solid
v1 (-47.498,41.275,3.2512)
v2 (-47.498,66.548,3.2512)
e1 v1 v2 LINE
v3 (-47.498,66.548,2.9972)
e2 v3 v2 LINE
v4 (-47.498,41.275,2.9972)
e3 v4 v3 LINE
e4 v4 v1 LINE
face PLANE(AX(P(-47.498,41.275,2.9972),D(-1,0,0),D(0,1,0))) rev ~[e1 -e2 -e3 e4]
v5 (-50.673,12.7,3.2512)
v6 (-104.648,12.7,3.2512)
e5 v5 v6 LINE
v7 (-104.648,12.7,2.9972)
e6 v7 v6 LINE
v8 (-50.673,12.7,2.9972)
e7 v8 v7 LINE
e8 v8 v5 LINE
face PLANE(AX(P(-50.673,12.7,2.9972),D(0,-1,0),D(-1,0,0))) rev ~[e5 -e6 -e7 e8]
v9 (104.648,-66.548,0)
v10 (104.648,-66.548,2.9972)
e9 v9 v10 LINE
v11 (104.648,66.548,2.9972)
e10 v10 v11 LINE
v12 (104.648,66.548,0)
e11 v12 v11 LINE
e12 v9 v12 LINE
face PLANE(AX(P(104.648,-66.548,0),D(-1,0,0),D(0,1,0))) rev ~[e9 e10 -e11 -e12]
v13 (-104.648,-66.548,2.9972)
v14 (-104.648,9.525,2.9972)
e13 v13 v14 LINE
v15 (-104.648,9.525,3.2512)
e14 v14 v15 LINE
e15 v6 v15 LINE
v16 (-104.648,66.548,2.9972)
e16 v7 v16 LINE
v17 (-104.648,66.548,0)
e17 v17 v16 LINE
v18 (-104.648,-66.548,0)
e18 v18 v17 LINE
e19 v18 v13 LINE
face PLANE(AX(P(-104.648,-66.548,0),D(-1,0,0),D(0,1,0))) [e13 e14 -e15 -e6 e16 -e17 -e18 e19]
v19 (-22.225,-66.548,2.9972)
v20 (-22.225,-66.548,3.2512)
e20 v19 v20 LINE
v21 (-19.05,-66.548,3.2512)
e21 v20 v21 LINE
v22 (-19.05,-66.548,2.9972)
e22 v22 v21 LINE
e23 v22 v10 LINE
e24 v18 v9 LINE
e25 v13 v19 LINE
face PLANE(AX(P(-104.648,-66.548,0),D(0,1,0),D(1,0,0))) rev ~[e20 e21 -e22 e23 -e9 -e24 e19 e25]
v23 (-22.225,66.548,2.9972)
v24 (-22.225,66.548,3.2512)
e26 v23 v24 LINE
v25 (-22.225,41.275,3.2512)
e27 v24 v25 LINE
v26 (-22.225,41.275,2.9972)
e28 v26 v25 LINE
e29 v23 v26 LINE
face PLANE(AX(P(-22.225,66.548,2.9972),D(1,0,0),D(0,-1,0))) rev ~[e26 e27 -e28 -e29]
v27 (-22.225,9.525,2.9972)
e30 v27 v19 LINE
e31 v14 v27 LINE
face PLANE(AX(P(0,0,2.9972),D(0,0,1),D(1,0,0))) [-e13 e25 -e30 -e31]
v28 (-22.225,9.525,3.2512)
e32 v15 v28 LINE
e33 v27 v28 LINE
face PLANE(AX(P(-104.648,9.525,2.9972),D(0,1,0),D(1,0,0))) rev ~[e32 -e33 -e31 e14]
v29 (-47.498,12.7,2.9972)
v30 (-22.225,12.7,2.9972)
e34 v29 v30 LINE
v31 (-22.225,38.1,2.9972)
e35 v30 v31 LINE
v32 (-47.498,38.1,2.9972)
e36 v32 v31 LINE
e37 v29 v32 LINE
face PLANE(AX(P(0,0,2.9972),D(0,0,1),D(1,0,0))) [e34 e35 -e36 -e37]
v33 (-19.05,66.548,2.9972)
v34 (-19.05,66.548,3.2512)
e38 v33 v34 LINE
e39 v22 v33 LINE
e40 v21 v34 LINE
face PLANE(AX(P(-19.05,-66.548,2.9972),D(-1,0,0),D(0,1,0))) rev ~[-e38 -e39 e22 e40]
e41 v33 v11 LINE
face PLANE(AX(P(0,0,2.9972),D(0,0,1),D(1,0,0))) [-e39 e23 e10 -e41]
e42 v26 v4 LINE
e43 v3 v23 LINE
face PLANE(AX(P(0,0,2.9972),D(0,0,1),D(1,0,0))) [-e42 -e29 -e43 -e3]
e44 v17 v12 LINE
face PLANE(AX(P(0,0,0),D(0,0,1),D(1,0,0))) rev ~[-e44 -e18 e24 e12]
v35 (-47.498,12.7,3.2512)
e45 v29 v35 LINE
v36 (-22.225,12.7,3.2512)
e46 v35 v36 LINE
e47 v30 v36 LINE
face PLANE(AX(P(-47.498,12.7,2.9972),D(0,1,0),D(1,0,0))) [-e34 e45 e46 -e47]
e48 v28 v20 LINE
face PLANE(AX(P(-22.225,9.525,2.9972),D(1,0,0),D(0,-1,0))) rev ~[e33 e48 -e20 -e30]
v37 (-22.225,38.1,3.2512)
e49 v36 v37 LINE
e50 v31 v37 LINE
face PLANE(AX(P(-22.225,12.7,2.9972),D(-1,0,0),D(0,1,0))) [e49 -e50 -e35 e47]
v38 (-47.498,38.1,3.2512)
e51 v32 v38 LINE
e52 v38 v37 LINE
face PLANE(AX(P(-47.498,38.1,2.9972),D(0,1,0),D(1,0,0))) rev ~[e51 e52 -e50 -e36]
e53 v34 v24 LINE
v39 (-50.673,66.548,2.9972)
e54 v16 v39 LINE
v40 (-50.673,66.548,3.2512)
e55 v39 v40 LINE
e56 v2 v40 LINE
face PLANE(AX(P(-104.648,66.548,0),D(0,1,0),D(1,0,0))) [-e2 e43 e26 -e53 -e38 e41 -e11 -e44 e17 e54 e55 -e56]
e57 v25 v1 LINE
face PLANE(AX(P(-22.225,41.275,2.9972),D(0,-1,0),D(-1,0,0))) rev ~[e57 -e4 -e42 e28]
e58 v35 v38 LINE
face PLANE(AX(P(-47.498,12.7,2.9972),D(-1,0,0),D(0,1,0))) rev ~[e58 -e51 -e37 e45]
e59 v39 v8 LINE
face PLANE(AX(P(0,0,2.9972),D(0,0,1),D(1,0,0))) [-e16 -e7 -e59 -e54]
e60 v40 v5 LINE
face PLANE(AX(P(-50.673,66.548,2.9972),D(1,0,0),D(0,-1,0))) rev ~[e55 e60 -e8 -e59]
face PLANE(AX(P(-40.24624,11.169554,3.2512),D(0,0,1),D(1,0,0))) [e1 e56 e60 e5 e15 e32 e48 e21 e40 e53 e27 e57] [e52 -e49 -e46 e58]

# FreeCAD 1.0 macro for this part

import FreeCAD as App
import Part
import Sketcher

V = App.Vector
Q = App.Units.Quantity

doc = App.newDocument("Part")
body = doc.addObject("PartDesign::Body", "Body")

sketch1 = doc.addObject("Sketcher::SketchObject", "Sketch")
body.addObject(sketch1)
sketch1.AttachmentSupport = (doc.XY_Plane, [""])
sketch1.MapMode = "FlatFace"
sketch1.addGeometry(Part.LineSegment(V(-105, 67, 0), V(-105, -67, 0)), False)
sketch1.addGeometry(Part.LineSegment(V(-105, -67, 0), V(105, -67, 0)), False)
sketch1.addGeometry(Part.LineSegment(V(105, -67, 0), V(105, 67, 0)), False)
sketch1.addGeometry(Part.LineSegment(V(105, 67, 0), V(-105, 67, 0)), False)
sketch1.addConstraint(Sketcher.Constraint("Coincident", 0, 2, 1, 1))
sketch1.addConstraint(Sketcher.Constraint("Coincident", 1, 2, 2, 1))
sketch1.addConstraint(Sketcher.Constraint("Coincident", 2, 2, 3, 1))
sketch1.addConstraint(Sketcher.Constraint("Coincident", 3, 2, 0, 1))
sketch1.addConstraint(Sketcher.Constraint("Vertical", 0))
sketch1.addConstraint(Sketcher.Constraint("Horizontal", 1))
sketch1.addConstraint(Sketcher.Constraint("Vertical", 2))
sketch1.addConstraint(Sketcher.Constraint("Horizontal", 3))
sketch1.addConstraint(Sketcher.Constraint("Symmetric", 0, 2, 2, 2, -1, 1))
sketch1.addConstraint(Sketcher.Constraint("DistanceX", 1, 1, 1, 2, Q("8.24 in")))
sketch1.addConstraint(Sketcher.Constraint("DistanceY", 0, 2, 0, 1, Q("5.24 in")))
pad1 = doc.addObject("PartDesign::Pad", "Pad")
body.addObject(pad1)
pad1.Profile = sketch1
pad1.Length = Q("0.118 in")

sketch2 = doc.addObject("Sketcher::SketchObject", "Sketch001")
body.addObject(sketch2)
sketch2.AttachmentSupport = (doc.XY_Plane, [""])
sketch2.MapMode = "FlatFace"
sketch2.AttachmentOffset = App.Placement(V(0, 0, 0.118 * 25.4), App.Rotation())
sketch2.addGeometry(Part.LineSegment(V(-47.5, 66.5, 0), V(-50.7, 66.5, 0)), False)
sketch2.addGeometry(Part.LineSegment(V(-50.7, 66.5, 0), V(-50.7, 12.7, 0)), False)
sketch2.addGeometry(Part.LineSegment(V(-50.7, 12.7, 0), V(-104.6, 12.7, 0)), False)
sketch2.addGeometry(Part.LineSegment(V(-104.6, 12.7, 0), V(-104.6, 9.5, 0)), False)
sketch2.addGeometry(Part.LineSegment(V(-104.6, 9.5, 0), V(-22.2, 9.5, 0)), False)
sketch2.addGeometry(Part.LineSegment(V(-22.2, 9.5, 0), V(-22.2, -66.5, 0)), False)
sketch2.addGeometry(Part.LineSegment(V(-22.2, -66.5, 0), V(-19.1, -66.5, 0)), False)
sketch2.addGeometry(Part.LineSegment(V(-19.1, -66.5, 0), V(-19.1, 66.5, 0)), False)
sketch2.addGeometry(Part.LineSegment(V(-19.1, 66.5, 0), V(-22.2, 66.5, 0)), False)
sketch2.addGeometry(Part.LineSegment(V(-22.2, 66.5, 0), V(-22.2, 41.3, 0)), False)
sketch2.addGeometry(Part.LineSegment(V(-22.2, 41.3, 0), V(-47.5, 41.3, 0)), False)
sketch2.addGeometry(Part.LineSegment(V(-47.5, 41.3, 0), V(-47.5, 66.5, 0)), False)
sketch2.addGeometry(Part.LineSegment(V(-22.2, 12.7, 0), V(-47.5, 12.7, 0)), False)
sketch2.addGeometry(Part.LineSegment(V(-47.5, 12.7, 0), V(-47.5, 38.1, 0)), False)
sketch2.addGeometry(Part.LineSegment(V(-47.5, 38.1, 0), V(-22.2, 38.1, 0)), False)
sketch2.addGeometry(Part.LineSegment(V(-22.2, 38.1, 0), V(-22.2, 12.7, 0)), False)
sketch2.addConstraint(Sketcher.Constraint("Coincident", 0, 2, 1, 1))
sketch2.addConstraint(Sketcher.Constraint("Coincident", 1, 2, 2, 1))
sketch2.addConstraint(Sketcher.Constraint("Coincident", 2, 2, 3, 1))
sketch2.addConstraint(Sketcher.Constraint("Coincident", 3, 2, 4, 1))
sketch2.addConstraint(Sketcher.Constraint("Coincident", 4, 2, 5, 1))
sketch2.addConstraint(Sketcher.Constraint("Coincident", 5, 2, 6, 1))
sketch2.addConstraint(Sketcher.Constraint("Coincident", 6, 2, 7, 1))
sketch2.addConstraint(Sketcher.Constraint("Coincident", 7, 2, 8, 1))
sketch2.addConstraint(Sketcher.Constraint("Coincident", 8, 2, 9, 1))
sketch2.addConstraint(Sketcher.Constraint("Coincident", 9, 2, 10, 1))
sketch2.addConstraint(Sketcher.Constraint("Coincident", 10, 2, 11, 1))
sketch2.addConstraint(Sketcher.Constraint("Coincident", 11, 2, 0, 1))
sketch2.addConstraint(Sketcher.Constraint("Coincident", 12, 2, 13, 1))
sketch2.addConstraint(Sketcher.Constraint("Coincident", 13, 2, 14, 1))
sketch2.addConstraint(Sketcher.Constraint("Coincident", 14, 2, 15, 1))
sketch2.addConstraint(Sketcher.Constraint("Coincident", 15, 2, 12, 1))
sketch2.addConstraint(Sketcher.Constraint("Horizontal", 0))
sketch2.addConstraint(Sketcher.Constraint("Vertical", 1))
sketch2.addConstraint(Sketcher.Constraint("Horizontal", 2))
sketch2.addConstraint(Sketcher.Constraint("Vertical", 3))
sketch2.addConstraint(Sketcher.Constraint("Horizontal", 4))
sketch2.addConstraint(Sketcher.Constraint("Vertical", 5))
sketch2.addConstraint(Sketcher.Constraint("Horizontal", 6))
sketch2.addConstraint(Sketcher.Constraint("Vertical", 7))
sketch2.addConstraint(Sketcher.Constraint("Horizontal", 8))
sketch2.addConstraint(Sketcher.Constraint("Vertical", 9))
sketch2.addConstraint(Sketcher.Constraint("Horizontal", 10))
sketch2.addConstraint(Sketcher.Constraint("Vertical", 11))
sketch2.addConstraint(Sketcher.Constraint("Horizontal", 12))
sketch2.addConstraint(Sketcher.Constraint("Vertical", 13))
sketch2.addConstraint(Sketcher.Constraint("Horizontal", 14))
sketch2.addConstraint(Sketcher.Constraint("Vertical", 15))
sketch2.addConstraint(Sketcher.Constraint("Symmetric", 5, 2, 8, 2, -1))
sketch2.addConstraint(Sketcher.Constraint("Horizontal", 0, 2, 7, 2))
sketch2.addConstraint(Sketcher.Constraint("Horizontal", 2, 2, 12, 2))
sketch2.addConstraint(Sketcher.Constraint("Vertical", 11, 2, 12, 2))
sketch2.addConstraint(Sketcher.Constraint("Vertical", 9, 2, 14, 2))
sketch2.addConstraint(Sketcher.Constraint("Equal", 0, 6))
sketch2.addConstraint(Sketcher.Constraint("Equal", 8, 3))
sketch2.addConstraint(Sketcher.Constraint("Equal", 14, 9))
sketch2.addConstraint(Sketcher.Constraint("DistanceY", 13, 1, 13, 2, Q("1 in")))
sketch2.addConstraint(Sketcher.Constraint("DistanceY", 1, 2, 1, 1, Q("2.12 in")))
sketch2.addConstraint(Sketcher.Constraint("DistanceY", 7, 1, 7, 2, Q("5.24 in")))
sketch2.addConstraint(Sketcher.Constraint("DistanceX", 0, 2, 0, 1, Q("0.125 in")))
sketch2.addConstraint(Sketcher.Constraint("DistanceX", 2, 2, 2, 1, Q("2.125 in")))
sketch2.addConstraint(Sketcher.Constraint("DistanceX", 4, 1, 4, 2, Q("3.245 in")))
sketch2.addConstraint(Sketcher.Constraint("DistanceX", 2, 2, -1, 1, Q("4.12 in")))
pad2 = doc.addObject("PartDesign::Pad", "Pad001")
body.addObject(pad2)
pad2.Profile = sketch2
pad2.Length = Q("0.01 in")

doc.recompute()
